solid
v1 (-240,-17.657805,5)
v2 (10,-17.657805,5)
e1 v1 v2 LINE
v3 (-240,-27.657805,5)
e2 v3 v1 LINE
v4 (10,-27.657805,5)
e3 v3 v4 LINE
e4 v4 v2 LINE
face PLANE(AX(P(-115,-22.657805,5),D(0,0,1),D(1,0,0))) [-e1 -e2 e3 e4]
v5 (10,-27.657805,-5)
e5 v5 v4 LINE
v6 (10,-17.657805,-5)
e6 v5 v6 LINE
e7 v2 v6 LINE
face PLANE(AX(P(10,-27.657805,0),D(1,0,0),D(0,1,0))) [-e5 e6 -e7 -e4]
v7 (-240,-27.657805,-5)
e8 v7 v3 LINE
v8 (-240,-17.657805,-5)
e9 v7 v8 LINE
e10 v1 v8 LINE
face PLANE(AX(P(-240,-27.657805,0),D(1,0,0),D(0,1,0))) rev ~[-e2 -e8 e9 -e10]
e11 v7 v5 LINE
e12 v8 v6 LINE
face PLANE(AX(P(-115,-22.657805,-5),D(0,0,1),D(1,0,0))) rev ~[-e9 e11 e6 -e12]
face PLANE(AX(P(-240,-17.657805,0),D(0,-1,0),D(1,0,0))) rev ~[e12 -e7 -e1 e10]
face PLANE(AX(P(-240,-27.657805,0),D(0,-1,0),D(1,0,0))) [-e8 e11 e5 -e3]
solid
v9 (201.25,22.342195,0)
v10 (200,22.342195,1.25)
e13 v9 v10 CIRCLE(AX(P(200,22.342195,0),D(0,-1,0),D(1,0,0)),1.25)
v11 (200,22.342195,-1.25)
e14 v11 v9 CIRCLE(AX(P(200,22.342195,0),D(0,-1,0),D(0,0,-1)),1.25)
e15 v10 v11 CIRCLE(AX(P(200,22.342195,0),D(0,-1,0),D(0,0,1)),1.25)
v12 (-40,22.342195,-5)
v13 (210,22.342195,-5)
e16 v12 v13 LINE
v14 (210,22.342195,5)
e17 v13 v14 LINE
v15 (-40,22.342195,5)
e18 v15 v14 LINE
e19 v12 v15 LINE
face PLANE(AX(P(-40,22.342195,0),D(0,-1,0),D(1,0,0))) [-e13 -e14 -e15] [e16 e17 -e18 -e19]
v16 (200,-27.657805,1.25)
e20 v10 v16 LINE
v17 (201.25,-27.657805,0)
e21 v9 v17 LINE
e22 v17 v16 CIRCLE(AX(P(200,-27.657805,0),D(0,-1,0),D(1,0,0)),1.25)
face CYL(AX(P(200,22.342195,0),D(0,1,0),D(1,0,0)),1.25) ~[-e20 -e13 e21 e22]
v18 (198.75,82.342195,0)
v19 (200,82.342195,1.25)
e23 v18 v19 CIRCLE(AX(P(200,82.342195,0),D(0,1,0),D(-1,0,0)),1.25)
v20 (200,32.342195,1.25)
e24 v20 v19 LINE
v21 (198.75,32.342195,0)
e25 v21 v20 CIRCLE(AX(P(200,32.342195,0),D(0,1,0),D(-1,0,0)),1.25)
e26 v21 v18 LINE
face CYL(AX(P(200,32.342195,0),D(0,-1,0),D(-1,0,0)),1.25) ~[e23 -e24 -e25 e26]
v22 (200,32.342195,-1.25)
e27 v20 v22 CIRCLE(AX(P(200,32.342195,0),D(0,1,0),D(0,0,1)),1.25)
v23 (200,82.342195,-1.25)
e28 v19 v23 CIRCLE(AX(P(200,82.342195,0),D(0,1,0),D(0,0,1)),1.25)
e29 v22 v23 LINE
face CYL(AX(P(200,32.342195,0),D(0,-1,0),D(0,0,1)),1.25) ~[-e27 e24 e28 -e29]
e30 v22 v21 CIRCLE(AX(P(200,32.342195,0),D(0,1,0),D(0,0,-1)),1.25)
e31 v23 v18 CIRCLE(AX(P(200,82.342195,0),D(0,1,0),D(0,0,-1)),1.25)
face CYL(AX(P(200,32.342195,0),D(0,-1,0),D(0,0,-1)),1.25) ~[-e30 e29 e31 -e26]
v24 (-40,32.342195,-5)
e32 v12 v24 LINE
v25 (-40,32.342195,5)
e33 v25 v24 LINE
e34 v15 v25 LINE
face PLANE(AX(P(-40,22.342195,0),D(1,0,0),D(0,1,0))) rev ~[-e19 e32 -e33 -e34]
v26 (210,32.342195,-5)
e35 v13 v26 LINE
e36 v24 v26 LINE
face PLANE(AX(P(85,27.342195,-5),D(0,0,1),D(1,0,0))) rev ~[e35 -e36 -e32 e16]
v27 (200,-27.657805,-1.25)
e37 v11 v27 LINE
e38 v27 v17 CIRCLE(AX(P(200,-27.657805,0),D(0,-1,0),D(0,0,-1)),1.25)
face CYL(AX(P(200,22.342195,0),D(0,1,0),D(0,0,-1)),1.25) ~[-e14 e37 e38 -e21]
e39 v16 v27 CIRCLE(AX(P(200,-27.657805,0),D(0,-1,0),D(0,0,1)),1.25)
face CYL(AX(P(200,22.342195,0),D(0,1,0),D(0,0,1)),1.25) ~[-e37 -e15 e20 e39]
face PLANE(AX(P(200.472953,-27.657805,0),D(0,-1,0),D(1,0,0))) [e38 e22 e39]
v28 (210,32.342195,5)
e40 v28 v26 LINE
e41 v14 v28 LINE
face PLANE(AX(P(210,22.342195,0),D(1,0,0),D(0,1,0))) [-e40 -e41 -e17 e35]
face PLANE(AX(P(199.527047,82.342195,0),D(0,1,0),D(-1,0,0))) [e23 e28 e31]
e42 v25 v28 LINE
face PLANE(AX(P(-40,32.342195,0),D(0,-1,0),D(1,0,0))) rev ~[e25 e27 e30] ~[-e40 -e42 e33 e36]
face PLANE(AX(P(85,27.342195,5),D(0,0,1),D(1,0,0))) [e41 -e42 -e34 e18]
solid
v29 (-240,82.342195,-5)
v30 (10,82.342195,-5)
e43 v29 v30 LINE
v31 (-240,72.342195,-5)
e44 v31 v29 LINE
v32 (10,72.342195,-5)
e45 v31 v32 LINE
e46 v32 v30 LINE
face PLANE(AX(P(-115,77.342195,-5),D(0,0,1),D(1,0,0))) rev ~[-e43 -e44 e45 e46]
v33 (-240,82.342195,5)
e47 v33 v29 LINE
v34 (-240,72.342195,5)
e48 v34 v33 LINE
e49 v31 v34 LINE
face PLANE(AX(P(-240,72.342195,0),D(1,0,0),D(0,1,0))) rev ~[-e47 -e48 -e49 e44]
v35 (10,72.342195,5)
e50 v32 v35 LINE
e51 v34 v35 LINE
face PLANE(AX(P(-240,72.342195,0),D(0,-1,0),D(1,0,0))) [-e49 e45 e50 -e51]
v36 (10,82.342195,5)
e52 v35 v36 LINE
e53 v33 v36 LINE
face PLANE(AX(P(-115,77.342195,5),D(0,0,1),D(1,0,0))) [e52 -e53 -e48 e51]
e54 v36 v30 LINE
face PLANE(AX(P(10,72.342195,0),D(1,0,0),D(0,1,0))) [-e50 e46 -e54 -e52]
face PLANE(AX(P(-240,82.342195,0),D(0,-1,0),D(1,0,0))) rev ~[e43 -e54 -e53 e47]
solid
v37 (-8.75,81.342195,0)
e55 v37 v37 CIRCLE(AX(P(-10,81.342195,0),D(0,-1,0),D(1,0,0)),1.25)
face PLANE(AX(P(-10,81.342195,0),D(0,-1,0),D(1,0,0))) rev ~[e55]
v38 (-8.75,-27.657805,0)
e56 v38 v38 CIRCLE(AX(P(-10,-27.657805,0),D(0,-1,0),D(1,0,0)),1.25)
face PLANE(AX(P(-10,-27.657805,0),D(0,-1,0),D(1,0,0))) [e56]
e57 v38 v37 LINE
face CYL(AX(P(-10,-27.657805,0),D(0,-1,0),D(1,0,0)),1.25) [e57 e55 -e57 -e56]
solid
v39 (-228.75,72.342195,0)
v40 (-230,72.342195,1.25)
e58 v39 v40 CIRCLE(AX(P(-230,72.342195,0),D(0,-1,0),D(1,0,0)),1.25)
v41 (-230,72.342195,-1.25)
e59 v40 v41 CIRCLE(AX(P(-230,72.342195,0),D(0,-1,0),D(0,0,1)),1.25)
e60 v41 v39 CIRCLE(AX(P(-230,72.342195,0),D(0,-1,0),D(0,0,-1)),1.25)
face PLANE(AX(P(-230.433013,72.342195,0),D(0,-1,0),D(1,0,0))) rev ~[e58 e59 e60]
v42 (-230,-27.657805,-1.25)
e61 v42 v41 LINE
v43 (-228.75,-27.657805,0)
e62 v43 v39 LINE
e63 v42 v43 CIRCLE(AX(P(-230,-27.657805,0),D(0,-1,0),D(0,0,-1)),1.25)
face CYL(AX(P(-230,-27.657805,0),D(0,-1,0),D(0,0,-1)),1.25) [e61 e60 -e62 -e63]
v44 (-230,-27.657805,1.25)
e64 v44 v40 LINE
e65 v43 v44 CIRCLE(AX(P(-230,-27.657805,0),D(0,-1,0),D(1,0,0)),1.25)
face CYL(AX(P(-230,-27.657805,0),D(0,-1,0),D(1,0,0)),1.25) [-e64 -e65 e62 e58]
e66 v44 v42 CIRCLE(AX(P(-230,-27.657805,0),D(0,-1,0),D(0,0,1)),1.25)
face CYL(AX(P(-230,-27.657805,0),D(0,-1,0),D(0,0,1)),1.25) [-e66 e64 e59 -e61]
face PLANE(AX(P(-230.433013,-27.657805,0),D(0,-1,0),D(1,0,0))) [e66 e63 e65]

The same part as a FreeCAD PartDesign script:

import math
import FreeCAD as App
import Part
import Sketcher
from FreeCAD import Vector


def add_polygon(sketch, points):
    """Adds a closed chain of lines whose ends are joined by coincident constraints."""
    first, n = sketch.GeometryCount, len(points)
    for a, b in zip(points, points[1:] + points[:1]):
        sketch.addGeometry(Part.LineSegment(App.Vector(*a, 0), App.Vector(*b, 0)), False)
    for i in range(n):
        sketch.addConstraint(Sketcher.Constraint("Coincident", first + i, 2, first + (i + 1) % n, 1))

doc = App.newDocument("Part")
body = doc.addObject("PartDesign::Body", "Body")

# Sketch on XY plane
sketch1 = doc.addObject("Sketcher::SketchObject", "Sketch")
body.addObject(sketch1)
sketch1.AttachmentSupport = (doc.XY_Plane, [""])
sketch1.MapMode = "FlatFace"
add_polygon(sketch1, [(-240, 82), (-240, 72), (10, 72), (10, 82)])  # lines 0-3
sketch1.addConstraint([
    Sketcher.Constraint("Vertical", 0),
    Sketcher.Constraint("Horizontal", 1),
    Sketcher.Constraint("Vertical", 2),
    Sketcher.Constraint("Horizontal", 3),
    Sketcher.Constraint("DistanceX", 1, 1, 1, 2, 250.0),
    Sketcher.Constraint("DistanceY", 0, 2, 0, 1, 10.0),
    Sketcher.Constraint("DistanceX", 0, 2, -1, 1, 240.0),
    Sketcher.Constraint("DistanceY", -1, 1, 0, 2, 72.342195),
])
pad1 = doc.addObject("PartDesign::Pad", "Pad")
body.addObject(pad1)
pad1.Profile = sketch1
pad1.Length = 10
pad1.Midplane = True
body2 = doc.addObject("PartDesign::Body", "Body001")

# Sketch on XY plane
sketch2 = doc.addObject("Sketcher::SketchObject", "Sketch001")
body2.addObject(sketch2)
sketch2.AttachmentSupport = (doc.getObject("XY_Plane001"), [""])
sketch2.MapMode = "FlatFace"
add_polygon(sketch2, [(-40, 32), (-40, 22), (210, 22), (210, 32)])  # lines 0-3
sketch2.addConstraint([
    Sketcher.Constraint("Vertical", 0),
    Sketcher.Constraint("Horizontal", 1),
    Sketcher.Constraint("Vertical", 2),
    Sketcher.Constraint("Horizontal", 3),
    Sketcher.Constraint("DistanceX", 1, 1, 1, 2, 250.0),
    Sketcher.Constraint("DistanceY", 0, 2, 0, 1, 10.0),
    Sketcher.Constraint("DistanceX", 0, 2, -1, 1, 40.0),
    Sketcher.Constraint("DistanceY", -1, 1, 0, 2, 22.342195),
])
pad2 = doc.addObject("PartDesign::Pad", "Pad001")
body2.addObject(pad2)
pad2.Profile = sketch2
pad2.Length = 10
pad2.Midplane = True

# Sketch on XZ plane
sketch3 = doc.addObject("Sketcher::SketchObject", "Sketch002")
body2.addObject(sketch3)
sketch3.AttachmentSupport = (doc.getObject("XZ_Plane001"), [""])
sketch3.MapMode = "FlatFace"
sketch3.AttachmentOffset = App.Placement(Vector(0, 0, -32.342195), App.Rotation())
sketch3.addGeometry([
    Part.ArcOfCircle(Part.Circle(Vector(200, 0, 0), Vector(0, 0, 1), 1.2), math.radians(90), math.radians(180)),
    Part.ArcOfCircle(Part.Circle(Vector(200, 0, 0), Vector(0, 0, 1), 1.2), math.radians(-90), math.radians(90)),
    Part.ArcOfCircle(Part.Circle(Vector(200, 0, 0), Vector(0, 0, 1), 1.2), math.radians(180), math.radians(270)),
], False)
sketch3.addConstraint([
    Sketcher.Constraint("Tangent", 0, 1, 1, 2),
    Sketcher.Constraint("Tangent", 1, 1, 2, 2),
    Sketcher.Constraint("Tangent", 2, 1, 0, 2),
    Sketcher.Constraint("Symmetric", 0, 1, 1, 1, -1),
    Sketcher.Constraint("PointOnObject", 2, 1, -1),
    Sketcher.Constraint("Vertical", 2, 3, 0, 1),
    Sketcher.Constraint("Radius", 0, 1.25),
    Sketcher.Constraint("DistanceX", -1, 1, 0, 3, 200.0),
])
pad3 = doc.addObject("PartDesign::Pad", "Pad002")
body2.addObject(pad3)
pad3.Profile = sketch3
pad3.Length = 50
pad3.Reversed = True

# Sketch on XZ plane
sketch4 = doc.addObject("Sketcher::SketchObject", "Sketch003")
body2.addObject(sketch4)
sketch4.AttachmentSupport = (doc.getObject("XZ_Plane001"), [""])
sketch4.MapMode = "FlatFace"
sketch4.AttachmentOffset = App.Placement(Vector(0, 0, -22.342195), App.Rotation())
sketch4.addGeometry([
    Part.ArcOfCircle(Part.Circle(Vector(200, 0, 0), Vector(0, 0, 1), 1.2), math.radians(0), math.radians(90)),
    Part.ArcOfCircle(Part.Circle(Vector(200, 0, 0), Vector(0, 0, 1), 1.2), math.radians(90), math.radians(270)),
    Part.ArcOfCircle(Part.Circle(Vector(200, 0, 0), Vector(0, 0, 1), 1.2), math.radians(-90), math.radians(0)),
], False)
sketch4.addConstraint([
    Sketcher.Constraint("Tangent", 0, 2, 1, 1),
    Sketcher.Constraint("Tangent", 1, 2, 2, 1),
    Sketcher.Constraint("Tangent", 2, 2, 0, 1),
    Sketcher.Constraint("Symmetric", 0, 2, 1, 2, -1),
    Sketcher.Constraint("PointOnObject", 2, 2, -1),
    Sketcher.Constraint("Vertical", 2, 3, 0, 2),
    Sketcher.Constraint("Radius", 0, 1.25),
    Sketcher.Constraint("DistanceX", -1, 1, 0, 3, 200.0),
])
pad4 = doc.addObject("PartDesign::Pad", "Pad003")
body2.addObject(pad4)
pad4.Profile = sketch4
pad4.Length = 50
body3 = doc.addObject("PartDesign::Body", "Body002")

# Sketch on XY plane
sketch5 = doc.addObject("Sketcher::SketchObject", "Sketch004")
body3.addObject(sketch5)
sketch5.AttachmentSupport = (doc.getObject("XY_Plane002"), [""])
sketch5.MapMode = "FlatFace"
add_polygon(sketch5, [(-240, -18), (-240, -28), (10, -28), (10, -18)])  # lines 0-3
sketch5.addConstraint([
    Sketcher.Constraint("Vertical", 0),
    Sketcher.Constraint("Horizontal", 1),
    Sketcher.Constraint("Vertical", 2),
    Sketcher.Constraint("Horizontal", 3),
    Sketcher.Constraint("DistanceX", 1, 1, 1, 2, 250.0),
    Sketcher.Constraint("DistanceY", 0, 2, 0, 1, 10.0),
    Sketcher.Constraint("DistanceX", 0, 2, -1, 1, 240.0),
    Sketcher.Constraint("DistanceY", 0, 2, -1, 1, 27.657805),
])
pad5 = doc.addObject("PartDesign::Pad", "Pad004")
body3.addObject(pad5)
pad5.Profile = sketch5
pad5.Length = 10
pad5.Midplane = True
body4 = doc.addObject("PartDesign::Body", "Body003")

# Sketch on XZ plane
sketch6 = doc.addObject("Sketcher::SketchObject", "Sketch005")
body4.addObject(sketch6)
sketch6.AttachmentSupport = (doc.getObject("XZ_Plane003"), [""])
sketch6.MapMode = "FlatFace"
sketch6.AttachmentOffset = App.Placement(Vector(0, 0, 27.657805), App.Rotation())
sketch6.addGeometry(Part.Circle(Vector(-10, 0, 0), Vector(0, 0, 1), 1.2), False)
sketch6.addConstraint([
    Sketcher.Constraint("PointOnObject", 0, 3, -1),
    Sketcher.Constraint("Diameter", 0, 2.5),
    Sketcher.Constraint("DistanceX", 0, 3, -1, 1, 10.0),
])
pad6 = doc.addObject("PartDesign::Pad", "Pad005")
body4.addObject(pad6)
pad6.Profile = sketch6
pad6.Length = 109
pad6.Reversed = True
body5 = doc.addObject("PartDesign::Body", "Body004")

# Sketch on XZ plane
sketch7 = doc.addObject("Sketcher::SketchObject", "Sketch006")
body5.addObject(sketch7)
sketch7.AttachmentSupport = (doc.getObject("XZ_Plane004"), [""])
sketch7.MapMode = "FlatFace"
sketch7.AttachmentOffset = App.Placement(Vector(0, 0, 27.657805), App.Rotation())
sketch7.addGeometry([
    Part.ArcOfCircle(Part.Circle(Vector(-230, 0, 0), Vector(0, 0, 1), 1.2), math.radians(90), math.radians(270)),
    Part.ArcOfCircle(Part.Circle(Vector(-230, 0, 0), Vector(0, 0, 1), 1.2), math.radians(-90), math.radians(0)),
    Part.ArcOfCircle(Part.Circle(Vector(-230, 0, 0), Vector(0, 0, 1), 1.2), math.radians(0), math.radians(90)),
], False)
sketch7.addConstraint([
    Sketcher.Constraint("Tangent", 0, 2, 1, 1),
    Sketcher.Constraint("Tangent", 1, 2, 2, 1),
    Sketcher.Constraint("Tangent", 2, 2, 0, 1),
    Sketcher.Constraint("Symmetric", 0, 2, 2, 2, -1),
    Sketcher.Constraint("PointOnObject", 1, 2, -1),
    Sketcher.Constraint("Vertical", 2, 3, 0, 2),
    Sketcher.Constraint("Radius", 0, 1.25),
    Sketcher.Constraint("DistanceX", 0, 3, -1, 1, 230.0),
])
pad7 = doc.addObject("PartDesign::Pad", "Pad006")
body5.addObject(pad7)
pad7.Profile = sketch7
pad7.Length = 100
pad7.Reversed = True

doc.recompute()
